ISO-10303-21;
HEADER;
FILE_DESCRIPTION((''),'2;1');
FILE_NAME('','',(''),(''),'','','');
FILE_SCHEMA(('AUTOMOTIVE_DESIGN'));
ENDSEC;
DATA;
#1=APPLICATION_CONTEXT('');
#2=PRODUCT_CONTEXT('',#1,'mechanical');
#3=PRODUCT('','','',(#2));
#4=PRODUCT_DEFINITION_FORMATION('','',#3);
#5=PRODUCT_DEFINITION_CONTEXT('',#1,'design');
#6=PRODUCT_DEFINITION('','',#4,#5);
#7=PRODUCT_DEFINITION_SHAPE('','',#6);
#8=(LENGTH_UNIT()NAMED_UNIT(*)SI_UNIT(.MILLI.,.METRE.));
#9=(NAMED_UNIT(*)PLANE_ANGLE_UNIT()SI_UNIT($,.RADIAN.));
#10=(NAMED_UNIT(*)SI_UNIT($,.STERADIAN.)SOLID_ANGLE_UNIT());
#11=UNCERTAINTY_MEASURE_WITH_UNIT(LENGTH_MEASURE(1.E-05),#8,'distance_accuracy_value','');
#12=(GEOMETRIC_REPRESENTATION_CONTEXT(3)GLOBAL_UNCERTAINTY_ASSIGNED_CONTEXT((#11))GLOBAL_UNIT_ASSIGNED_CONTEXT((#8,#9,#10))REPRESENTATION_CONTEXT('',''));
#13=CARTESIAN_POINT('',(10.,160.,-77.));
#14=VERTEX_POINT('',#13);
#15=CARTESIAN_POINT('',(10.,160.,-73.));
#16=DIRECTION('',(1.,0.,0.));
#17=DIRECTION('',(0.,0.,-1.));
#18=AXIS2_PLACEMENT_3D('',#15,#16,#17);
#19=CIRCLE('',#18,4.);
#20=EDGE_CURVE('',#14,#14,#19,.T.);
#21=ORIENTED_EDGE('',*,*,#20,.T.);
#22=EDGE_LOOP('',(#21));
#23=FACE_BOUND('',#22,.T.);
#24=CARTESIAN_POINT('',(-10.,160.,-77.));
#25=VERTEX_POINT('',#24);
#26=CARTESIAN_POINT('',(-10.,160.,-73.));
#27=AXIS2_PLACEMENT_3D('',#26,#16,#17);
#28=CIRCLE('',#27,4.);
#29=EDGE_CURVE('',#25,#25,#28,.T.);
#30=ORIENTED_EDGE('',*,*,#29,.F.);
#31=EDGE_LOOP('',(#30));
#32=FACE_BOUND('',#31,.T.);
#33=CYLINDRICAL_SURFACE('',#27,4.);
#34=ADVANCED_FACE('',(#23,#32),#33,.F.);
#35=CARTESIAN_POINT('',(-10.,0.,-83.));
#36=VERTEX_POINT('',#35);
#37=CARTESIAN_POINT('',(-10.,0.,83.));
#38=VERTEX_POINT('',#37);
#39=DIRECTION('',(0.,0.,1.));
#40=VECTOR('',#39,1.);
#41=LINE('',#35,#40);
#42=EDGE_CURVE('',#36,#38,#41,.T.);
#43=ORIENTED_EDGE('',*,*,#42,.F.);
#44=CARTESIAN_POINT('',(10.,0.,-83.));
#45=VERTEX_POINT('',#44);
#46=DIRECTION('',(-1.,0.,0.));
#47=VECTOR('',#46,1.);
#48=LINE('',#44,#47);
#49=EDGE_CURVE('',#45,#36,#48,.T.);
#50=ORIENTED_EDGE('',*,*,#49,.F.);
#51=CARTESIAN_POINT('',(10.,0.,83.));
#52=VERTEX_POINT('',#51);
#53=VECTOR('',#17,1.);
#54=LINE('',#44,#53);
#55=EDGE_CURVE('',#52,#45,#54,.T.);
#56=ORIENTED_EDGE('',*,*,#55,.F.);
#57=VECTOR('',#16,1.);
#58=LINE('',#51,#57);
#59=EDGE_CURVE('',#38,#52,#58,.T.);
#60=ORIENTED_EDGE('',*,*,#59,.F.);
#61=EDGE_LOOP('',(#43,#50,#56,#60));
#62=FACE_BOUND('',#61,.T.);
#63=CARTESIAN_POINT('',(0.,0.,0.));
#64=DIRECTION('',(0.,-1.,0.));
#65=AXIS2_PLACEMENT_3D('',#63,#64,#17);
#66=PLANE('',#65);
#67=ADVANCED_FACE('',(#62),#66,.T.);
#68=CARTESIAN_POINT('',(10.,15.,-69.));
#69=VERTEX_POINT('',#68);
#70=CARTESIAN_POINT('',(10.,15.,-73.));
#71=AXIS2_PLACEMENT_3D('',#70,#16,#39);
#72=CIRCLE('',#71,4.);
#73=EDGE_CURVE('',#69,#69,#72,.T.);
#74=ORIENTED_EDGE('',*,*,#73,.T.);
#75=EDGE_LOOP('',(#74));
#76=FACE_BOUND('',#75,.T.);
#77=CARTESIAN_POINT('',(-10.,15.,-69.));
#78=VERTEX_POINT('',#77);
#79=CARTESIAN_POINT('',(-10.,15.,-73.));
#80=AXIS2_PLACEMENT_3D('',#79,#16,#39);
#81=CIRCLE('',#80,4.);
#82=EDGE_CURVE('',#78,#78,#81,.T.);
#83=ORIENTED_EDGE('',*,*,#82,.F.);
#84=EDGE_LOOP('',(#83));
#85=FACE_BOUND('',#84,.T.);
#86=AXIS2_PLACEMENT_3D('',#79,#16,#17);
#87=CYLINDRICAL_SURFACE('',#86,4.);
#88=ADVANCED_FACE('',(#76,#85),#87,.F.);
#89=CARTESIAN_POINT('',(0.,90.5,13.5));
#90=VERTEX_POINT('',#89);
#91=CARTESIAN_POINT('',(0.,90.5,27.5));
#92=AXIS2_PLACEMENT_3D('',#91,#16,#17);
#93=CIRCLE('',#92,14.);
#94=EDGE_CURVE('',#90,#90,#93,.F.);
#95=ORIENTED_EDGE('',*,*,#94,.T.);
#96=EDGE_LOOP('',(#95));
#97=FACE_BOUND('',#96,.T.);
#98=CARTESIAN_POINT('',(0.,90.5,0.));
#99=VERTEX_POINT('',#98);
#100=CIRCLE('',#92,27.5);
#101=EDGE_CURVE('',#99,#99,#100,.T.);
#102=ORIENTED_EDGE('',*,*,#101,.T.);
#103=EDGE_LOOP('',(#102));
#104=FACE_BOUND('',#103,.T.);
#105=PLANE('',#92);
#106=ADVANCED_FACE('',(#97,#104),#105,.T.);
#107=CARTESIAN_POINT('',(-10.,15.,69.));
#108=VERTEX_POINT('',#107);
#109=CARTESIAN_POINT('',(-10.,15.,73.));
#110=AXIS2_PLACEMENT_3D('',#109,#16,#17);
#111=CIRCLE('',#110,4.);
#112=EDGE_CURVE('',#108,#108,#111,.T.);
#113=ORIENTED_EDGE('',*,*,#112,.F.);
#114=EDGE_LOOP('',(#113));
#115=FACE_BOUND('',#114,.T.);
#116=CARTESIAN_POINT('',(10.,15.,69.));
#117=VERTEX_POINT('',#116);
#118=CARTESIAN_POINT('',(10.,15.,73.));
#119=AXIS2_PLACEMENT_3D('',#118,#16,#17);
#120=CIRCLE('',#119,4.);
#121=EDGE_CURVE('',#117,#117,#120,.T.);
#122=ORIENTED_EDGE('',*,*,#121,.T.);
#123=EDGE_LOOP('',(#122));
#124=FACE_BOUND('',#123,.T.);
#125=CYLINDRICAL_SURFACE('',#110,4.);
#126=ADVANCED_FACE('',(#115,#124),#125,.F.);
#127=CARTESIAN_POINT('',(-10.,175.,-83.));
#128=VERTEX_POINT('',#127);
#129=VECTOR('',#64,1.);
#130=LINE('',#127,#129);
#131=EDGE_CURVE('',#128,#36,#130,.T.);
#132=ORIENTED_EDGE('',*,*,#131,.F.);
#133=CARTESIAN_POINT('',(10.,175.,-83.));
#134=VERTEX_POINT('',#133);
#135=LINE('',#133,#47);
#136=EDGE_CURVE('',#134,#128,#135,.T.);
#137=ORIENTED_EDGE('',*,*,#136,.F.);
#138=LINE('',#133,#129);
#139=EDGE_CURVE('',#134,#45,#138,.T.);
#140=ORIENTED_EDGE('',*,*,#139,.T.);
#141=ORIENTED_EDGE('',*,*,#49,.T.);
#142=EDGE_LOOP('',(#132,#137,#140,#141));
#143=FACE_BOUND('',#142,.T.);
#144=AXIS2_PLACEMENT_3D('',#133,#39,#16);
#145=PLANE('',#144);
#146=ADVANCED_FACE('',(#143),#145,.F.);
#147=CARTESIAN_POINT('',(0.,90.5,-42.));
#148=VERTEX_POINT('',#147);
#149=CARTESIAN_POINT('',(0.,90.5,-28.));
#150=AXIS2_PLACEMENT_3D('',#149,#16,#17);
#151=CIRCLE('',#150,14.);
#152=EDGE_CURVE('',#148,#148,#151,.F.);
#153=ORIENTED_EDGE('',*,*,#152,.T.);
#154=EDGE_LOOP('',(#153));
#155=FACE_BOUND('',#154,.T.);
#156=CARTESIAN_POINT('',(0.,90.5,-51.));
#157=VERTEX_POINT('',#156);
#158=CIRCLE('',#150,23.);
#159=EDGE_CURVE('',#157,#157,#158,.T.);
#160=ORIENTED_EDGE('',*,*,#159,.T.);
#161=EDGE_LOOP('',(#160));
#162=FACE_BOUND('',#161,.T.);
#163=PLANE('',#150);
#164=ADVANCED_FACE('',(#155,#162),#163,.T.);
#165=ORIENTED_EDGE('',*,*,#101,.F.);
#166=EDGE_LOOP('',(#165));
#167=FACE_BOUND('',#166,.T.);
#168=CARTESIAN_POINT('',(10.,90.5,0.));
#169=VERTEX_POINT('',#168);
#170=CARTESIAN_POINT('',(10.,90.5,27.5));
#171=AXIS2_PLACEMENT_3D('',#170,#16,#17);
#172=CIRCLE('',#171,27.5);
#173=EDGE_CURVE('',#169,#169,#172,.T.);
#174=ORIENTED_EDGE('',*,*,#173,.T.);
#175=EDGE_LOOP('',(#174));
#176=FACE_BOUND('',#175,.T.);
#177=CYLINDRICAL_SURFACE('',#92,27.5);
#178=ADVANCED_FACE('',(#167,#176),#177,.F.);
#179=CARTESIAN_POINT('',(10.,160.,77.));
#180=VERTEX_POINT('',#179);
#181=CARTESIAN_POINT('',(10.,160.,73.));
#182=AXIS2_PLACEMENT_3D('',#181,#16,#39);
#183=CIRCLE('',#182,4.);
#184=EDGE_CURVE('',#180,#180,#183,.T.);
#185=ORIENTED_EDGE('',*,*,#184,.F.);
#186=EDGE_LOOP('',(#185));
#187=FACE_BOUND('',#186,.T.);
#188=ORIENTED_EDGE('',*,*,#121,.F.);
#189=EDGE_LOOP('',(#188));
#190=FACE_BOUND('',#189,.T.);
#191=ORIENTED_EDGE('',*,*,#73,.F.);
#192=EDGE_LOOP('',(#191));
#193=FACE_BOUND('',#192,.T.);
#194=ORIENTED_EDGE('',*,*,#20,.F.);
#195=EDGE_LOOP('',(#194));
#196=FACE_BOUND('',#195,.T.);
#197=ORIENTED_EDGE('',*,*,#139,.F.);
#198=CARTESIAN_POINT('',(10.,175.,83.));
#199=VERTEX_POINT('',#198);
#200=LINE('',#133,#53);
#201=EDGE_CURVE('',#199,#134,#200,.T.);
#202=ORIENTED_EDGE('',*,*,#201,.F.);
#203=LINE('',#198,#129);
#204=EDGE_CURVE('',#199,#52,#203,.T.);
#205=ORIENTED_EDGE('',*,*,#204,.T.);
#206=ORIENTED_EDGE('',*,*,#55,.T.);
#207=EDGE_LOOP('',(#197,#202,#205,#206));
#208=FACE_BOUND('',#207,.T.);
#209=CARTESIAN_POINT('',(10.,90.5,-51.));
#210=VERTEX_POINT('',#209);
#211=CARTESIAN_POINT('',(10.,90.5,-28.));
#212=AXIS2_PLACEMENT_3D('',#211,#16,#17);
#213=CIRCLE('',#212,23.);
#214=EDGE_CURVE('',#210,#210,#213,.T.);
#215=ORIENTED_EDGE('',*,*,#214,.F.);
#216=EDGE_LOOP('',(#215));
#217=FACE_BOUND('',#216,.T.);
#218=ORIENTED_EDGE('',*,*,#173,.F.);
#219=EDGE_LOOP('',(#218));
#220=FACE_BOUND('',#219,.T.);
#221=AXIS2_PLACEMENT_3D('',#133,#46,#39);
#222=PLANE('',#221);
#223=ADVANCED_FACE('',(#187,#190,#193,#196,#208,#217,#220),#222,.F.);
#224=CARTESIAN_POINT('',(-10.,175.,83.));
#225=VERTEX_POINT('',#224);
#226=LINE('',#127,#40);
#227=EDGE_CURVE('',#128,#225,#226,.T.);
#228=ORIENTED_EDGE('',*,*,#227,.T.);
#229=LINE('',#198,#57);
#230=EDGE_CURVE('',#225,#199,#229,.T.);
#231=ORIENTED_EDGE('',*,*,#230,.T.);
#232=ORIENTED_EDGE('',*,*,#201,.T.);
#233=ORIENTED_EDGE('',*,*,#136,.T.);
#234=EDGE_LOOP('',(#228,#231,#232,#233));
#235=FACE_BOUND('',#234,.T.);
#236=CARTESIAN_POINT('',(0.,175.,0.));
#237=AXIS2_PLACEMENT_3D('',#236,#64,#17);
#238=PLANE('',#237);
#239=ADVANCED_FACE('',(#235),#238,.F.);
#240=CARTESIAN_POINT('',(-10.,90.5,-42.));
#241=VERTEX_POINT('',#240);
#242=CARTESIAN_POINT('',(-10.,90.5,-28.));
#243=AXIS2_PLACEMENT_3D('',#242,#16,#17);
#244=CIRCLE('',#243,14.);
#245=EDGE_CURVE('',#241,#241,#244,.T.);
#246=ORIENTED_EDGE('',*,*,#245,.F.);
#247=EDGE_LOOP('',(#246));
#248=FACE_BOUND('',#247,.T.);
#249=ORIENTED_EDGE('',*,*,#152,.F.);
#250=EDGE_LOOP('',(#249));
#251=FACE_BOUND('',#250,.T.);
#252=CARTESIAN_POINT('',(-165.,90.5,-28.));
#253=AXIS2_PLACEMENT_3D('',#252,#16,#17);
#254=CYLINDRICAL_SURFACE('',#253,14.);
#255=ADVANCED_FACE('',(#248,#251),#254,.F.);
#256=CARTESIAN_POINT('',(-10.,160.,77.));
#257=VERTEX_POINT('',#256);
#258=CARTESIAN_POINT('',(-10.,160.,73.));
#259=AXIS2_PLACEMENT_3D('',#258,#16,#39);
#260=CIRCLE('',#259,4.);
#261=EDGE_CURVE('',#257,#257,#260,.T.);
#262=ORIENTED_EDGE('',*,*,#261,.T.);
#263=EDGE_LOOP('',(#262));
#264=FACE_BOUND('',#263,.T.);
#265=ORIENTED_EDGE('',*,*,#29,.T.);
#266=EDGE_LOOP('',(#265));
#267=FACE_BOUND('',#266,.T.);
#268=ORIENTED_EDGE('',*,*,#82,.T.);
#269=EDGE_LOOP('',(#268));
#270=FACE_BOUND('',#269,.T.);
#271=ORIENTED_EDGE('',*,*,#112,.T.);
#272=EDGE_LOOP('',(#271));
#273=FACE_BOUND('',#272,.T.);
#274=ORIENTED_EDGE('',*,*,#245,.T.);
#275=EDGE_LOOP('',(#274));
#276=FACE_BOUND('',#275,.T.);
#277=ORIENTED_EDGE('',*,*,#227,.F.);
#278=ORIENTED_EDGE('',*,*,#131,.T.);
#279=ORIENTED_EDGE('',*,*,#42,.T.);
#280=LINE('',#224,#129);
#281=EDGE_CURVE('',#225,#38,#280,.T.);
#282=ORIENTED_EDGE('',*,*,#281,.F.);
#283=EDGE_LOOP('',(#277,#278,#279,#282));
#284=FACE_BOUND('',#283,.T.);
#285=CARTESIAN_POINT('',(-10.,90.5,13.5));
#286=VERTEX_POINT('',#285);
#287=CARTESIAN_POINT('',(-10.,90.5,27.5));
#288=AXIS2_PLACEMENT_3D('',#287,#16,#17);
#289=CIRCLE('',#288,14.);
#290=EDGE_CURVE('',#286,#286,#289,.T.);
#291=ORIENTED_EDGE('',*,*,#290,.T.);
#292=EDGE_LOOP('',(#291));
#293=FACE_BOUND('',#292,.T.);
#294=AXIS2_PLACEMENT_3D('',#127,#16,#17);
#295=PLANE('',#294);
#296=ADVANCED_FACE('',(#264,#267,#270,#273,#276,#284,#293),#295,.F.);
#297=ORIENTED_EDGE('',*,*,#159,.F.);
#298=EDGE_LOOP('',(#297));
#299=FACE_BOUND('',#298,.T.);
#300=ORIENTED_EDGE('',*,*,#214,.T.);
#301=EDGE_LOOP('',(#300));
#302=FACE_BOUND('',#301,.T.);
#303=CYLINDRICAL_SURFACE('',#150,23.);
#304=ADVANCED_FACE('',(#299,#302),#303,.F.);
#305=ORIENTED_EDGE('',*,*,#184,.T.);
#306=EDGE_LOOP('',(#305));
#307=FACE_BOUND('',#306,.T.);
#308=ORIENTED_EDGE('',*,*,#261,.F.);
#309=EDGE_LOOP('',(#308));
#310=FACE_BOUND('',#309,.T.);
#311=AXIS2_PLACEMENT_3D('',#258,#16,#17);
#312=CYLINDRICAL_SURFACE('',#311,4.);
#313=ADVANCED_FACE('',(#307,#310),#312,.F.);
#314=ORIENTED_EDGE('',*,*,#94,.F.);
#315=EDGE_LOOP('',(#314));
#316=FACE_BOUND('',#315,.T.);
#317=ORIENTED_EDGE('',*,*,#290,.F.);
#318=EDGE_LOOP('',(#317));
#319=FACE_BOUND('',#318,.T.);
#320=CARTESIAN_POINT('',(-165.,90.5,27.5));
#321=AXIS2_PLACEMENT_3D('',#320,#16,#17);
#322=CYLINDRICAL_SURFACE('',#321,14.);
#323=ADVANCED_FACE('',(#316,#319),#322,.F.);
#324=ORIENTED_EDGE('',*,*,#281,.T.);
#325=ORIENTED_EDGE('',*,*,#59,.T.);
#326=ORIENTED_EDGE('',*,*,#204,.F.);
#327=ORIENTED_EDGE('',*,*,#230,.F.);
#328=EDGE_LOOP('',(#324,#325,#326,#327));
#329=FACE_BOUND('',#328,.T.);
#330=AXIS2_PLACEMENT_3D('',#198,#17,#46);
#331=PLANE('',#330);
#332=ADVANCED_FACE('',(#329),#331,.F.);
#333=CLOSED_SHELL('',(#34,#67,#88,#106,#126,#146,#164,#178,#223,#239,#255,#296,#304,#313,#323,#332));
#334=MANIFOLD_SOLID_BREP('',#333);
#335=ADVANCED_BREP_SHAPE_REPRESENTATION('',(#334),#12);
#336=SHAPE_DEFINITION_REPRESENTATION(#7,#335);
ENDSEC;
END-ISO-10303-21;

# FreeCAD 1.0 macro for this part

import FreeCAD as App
import Part
import Sketcher

V = App.Vector


def add_polygon(sketch, points):
    """Adds a closed chain of lines whose ends are joined by coincident constraints."""
    first, n = sketch.GeometryCount, len(points)
    for a, b in zip(points, points[1:] + points[:1]):
        sketch.addGeometry(Part.LineSegment(App.Vector(*a, 0), App.Vector(*b, 0)), False)
    for i in range(n):
        sketch.addConstraint(Sketcher.Constraint("Coincident", first + i, 2, first + (i + 1) % n, 1))

doc = App.newDocument("Part")
body = doc.addObject("PartDesign::Body", "Body")

# Sketch on XZ plane
sketch1 = body.newObject("Sketcher::SketchObject", "Sketch")
sketch1.AttachmentSupport = (doc.getObject("XZ_Plane"), [""])
sketch1.MapMode = "FlatFace"
add_polygon(sketch1, [(-10, -83), (-10, 83), (10, 83), (10, -83)])  # lines 0-3
sketch1.addConstraint([
    Sketcher.Constraint("Vertical", 0),
    Sketcher.Constraint("Horizontal", 1),
    Sketcher.Constraint("Vertical", 2),
    Sketcher.Constraint("Horizontal", 3),
    Sketcher.Constraint("Symmetric", 0, 2, 2, 2, -1, 1),
    Sketcher.Constraint("DistanceX", 1, 1, 1, 2, 20.0),
    Sketcher.Constraint("DistanceY", 0, 1, 0, 2, 166.0),
])
pad1 = body.newObject("PartDesign::Pad", "Pad")
pad1.Profile = sketch1
pad1.Length = 175
pad1.Reversed = True

# Sketch on YZ plane
sketch2 = body.newObject("Sketcher::SketchObject", "Sketch001")
sketch2.AttachmentSupport = (doc.getObject("YZ_Plane"), [""])
sketch2.MapMode = "FlatFace"
sketch2.AttachmentOffset = App.Placement(V(0, 0, 10), App.Rotation())
sketch2.addGeometry([
    Part.Circle(V(90.5, 27.5, 0), V(0, 0, 1), 14),
    Part.Circle(V(90.5, -28, 0), V(0, 0, 1), 14),
], False)
sketch2.addConstraint([
    Sketcher.Constraint("Equal", 0, 1),
    Sketcher.Constraint("Vertical", 0, 3, 1, 3),
    Sketcher.Constraint("Diameter", 0, 28.0),
    Sketcher.Constraint("DistanceY", 1, 3, -1, 1, 28.0),
    Sketcher.Constraint("DistanceX", -1, 1, 0, 3, 90.5),
    Sketcher.Constraint("DistanceY", -1, 1, 0, 3, 27.5),
])
pocket1 = body.newObject("PartDesign::Pocket", "Pocket")
pocket1.Profile = sketch2
pocket1.Length = 175

# Sketch on YZ plane
sketch3 = body.newObject("Sketcher::SketchObject", "Sketch002")
sketch3.AttachmentSupport = (doc.getObject("YZ_Plane"), [""])
sketch3.MapMode = "FlatFace"
sketch3.AttachmentOffset = App.Placement(V(0, 0, 10), App.Rotation())
sketch3.addGeometry([
    Part.Circle(V(90.5, 27.5, 0), V(0, 0, 1), 27.5),
    Part.Circle(V(90.5, -28, 0), V(0, 0, 1), 23),
], False)
sketch3.addConstraint([
    Sketcher.Constraint("Vertical", 0, 3, 1, 3),
    Sketcher.Constraint("Diameter", 0, 55.0),
    Sketcher.Constraint("Diameter", 1, 46.0),
    Sketcher.Constraint("DistanceY", 1, 3, -1, 1, 28.0),
    Sketcher.Constraint("DistanceX", -1, 1, 0, 3, 90.5),
    Sketcher.Constraint("DistanceY", -1, 1, 0, 3, 27.5),
])
pocket2 = body.newObject("PartDesign::Pocket", "Pocket001")
pocket2.Profile = sketch3
pocket2.Length = 10

# Sketch on YZ plane
sketch4 = body.newObject("Sketcher::SketchObject", "Sketch003")
sketch4.AttachmentSupport = (doc.getObject("YZ_Plane"), [""])
sketch4.MapMode = "FlatFace"
sketch4.AttachmentOffset = App.Placement(V(0, 0, 10), App.Rotation())
sketch4.addGeometry([
    Part.Circle(V(160, -73, 0), V(0, 0, 1), 4),
    Part.Circle(V(15, -73, 0), V(0, 0, 1), 4),
    Part.Circle(V(15, 73, 0), V(0, 0, 1), 4),
    Part.Circle(V(160, 73, 0), V(0, 0, 1), 4),
], False)
sketch4.addConstraint([
    Sketcher.Constraint("Equal", 0, 1),
    Sketcher.Constraint("Equal", 1, 2),
    Sketcher.Constraint("Equal", 2, 3),
    Sketcher.Constraint("Symmetric", 1, 3, 2, 3, -1),
    Sketcher.Constraint("Symmetric", 0, 3, 3, 3, -1),
    Sketcher.Constraint("Horizontal", 0, 3, 1, 3),
    Sketcher.Constraint("Diameter", 0, 8.0),
    Sketcher.Constraint("DistanceX", -1, 1, 0, 3, 160.0),
    Sketcher.Constraint("DistanceY", 0, 3, -1, 1, 73.0),
    Sketcher.Constraint("DistanceX", -1, 1, 1, 3, 15.0),
])
pocket3 = body.newObject("PartDesign::Pocket", "Pocket002")
pocket3.Profile = sketch4
pocket3.Type = "ThroughAll"

doc.recompute()
